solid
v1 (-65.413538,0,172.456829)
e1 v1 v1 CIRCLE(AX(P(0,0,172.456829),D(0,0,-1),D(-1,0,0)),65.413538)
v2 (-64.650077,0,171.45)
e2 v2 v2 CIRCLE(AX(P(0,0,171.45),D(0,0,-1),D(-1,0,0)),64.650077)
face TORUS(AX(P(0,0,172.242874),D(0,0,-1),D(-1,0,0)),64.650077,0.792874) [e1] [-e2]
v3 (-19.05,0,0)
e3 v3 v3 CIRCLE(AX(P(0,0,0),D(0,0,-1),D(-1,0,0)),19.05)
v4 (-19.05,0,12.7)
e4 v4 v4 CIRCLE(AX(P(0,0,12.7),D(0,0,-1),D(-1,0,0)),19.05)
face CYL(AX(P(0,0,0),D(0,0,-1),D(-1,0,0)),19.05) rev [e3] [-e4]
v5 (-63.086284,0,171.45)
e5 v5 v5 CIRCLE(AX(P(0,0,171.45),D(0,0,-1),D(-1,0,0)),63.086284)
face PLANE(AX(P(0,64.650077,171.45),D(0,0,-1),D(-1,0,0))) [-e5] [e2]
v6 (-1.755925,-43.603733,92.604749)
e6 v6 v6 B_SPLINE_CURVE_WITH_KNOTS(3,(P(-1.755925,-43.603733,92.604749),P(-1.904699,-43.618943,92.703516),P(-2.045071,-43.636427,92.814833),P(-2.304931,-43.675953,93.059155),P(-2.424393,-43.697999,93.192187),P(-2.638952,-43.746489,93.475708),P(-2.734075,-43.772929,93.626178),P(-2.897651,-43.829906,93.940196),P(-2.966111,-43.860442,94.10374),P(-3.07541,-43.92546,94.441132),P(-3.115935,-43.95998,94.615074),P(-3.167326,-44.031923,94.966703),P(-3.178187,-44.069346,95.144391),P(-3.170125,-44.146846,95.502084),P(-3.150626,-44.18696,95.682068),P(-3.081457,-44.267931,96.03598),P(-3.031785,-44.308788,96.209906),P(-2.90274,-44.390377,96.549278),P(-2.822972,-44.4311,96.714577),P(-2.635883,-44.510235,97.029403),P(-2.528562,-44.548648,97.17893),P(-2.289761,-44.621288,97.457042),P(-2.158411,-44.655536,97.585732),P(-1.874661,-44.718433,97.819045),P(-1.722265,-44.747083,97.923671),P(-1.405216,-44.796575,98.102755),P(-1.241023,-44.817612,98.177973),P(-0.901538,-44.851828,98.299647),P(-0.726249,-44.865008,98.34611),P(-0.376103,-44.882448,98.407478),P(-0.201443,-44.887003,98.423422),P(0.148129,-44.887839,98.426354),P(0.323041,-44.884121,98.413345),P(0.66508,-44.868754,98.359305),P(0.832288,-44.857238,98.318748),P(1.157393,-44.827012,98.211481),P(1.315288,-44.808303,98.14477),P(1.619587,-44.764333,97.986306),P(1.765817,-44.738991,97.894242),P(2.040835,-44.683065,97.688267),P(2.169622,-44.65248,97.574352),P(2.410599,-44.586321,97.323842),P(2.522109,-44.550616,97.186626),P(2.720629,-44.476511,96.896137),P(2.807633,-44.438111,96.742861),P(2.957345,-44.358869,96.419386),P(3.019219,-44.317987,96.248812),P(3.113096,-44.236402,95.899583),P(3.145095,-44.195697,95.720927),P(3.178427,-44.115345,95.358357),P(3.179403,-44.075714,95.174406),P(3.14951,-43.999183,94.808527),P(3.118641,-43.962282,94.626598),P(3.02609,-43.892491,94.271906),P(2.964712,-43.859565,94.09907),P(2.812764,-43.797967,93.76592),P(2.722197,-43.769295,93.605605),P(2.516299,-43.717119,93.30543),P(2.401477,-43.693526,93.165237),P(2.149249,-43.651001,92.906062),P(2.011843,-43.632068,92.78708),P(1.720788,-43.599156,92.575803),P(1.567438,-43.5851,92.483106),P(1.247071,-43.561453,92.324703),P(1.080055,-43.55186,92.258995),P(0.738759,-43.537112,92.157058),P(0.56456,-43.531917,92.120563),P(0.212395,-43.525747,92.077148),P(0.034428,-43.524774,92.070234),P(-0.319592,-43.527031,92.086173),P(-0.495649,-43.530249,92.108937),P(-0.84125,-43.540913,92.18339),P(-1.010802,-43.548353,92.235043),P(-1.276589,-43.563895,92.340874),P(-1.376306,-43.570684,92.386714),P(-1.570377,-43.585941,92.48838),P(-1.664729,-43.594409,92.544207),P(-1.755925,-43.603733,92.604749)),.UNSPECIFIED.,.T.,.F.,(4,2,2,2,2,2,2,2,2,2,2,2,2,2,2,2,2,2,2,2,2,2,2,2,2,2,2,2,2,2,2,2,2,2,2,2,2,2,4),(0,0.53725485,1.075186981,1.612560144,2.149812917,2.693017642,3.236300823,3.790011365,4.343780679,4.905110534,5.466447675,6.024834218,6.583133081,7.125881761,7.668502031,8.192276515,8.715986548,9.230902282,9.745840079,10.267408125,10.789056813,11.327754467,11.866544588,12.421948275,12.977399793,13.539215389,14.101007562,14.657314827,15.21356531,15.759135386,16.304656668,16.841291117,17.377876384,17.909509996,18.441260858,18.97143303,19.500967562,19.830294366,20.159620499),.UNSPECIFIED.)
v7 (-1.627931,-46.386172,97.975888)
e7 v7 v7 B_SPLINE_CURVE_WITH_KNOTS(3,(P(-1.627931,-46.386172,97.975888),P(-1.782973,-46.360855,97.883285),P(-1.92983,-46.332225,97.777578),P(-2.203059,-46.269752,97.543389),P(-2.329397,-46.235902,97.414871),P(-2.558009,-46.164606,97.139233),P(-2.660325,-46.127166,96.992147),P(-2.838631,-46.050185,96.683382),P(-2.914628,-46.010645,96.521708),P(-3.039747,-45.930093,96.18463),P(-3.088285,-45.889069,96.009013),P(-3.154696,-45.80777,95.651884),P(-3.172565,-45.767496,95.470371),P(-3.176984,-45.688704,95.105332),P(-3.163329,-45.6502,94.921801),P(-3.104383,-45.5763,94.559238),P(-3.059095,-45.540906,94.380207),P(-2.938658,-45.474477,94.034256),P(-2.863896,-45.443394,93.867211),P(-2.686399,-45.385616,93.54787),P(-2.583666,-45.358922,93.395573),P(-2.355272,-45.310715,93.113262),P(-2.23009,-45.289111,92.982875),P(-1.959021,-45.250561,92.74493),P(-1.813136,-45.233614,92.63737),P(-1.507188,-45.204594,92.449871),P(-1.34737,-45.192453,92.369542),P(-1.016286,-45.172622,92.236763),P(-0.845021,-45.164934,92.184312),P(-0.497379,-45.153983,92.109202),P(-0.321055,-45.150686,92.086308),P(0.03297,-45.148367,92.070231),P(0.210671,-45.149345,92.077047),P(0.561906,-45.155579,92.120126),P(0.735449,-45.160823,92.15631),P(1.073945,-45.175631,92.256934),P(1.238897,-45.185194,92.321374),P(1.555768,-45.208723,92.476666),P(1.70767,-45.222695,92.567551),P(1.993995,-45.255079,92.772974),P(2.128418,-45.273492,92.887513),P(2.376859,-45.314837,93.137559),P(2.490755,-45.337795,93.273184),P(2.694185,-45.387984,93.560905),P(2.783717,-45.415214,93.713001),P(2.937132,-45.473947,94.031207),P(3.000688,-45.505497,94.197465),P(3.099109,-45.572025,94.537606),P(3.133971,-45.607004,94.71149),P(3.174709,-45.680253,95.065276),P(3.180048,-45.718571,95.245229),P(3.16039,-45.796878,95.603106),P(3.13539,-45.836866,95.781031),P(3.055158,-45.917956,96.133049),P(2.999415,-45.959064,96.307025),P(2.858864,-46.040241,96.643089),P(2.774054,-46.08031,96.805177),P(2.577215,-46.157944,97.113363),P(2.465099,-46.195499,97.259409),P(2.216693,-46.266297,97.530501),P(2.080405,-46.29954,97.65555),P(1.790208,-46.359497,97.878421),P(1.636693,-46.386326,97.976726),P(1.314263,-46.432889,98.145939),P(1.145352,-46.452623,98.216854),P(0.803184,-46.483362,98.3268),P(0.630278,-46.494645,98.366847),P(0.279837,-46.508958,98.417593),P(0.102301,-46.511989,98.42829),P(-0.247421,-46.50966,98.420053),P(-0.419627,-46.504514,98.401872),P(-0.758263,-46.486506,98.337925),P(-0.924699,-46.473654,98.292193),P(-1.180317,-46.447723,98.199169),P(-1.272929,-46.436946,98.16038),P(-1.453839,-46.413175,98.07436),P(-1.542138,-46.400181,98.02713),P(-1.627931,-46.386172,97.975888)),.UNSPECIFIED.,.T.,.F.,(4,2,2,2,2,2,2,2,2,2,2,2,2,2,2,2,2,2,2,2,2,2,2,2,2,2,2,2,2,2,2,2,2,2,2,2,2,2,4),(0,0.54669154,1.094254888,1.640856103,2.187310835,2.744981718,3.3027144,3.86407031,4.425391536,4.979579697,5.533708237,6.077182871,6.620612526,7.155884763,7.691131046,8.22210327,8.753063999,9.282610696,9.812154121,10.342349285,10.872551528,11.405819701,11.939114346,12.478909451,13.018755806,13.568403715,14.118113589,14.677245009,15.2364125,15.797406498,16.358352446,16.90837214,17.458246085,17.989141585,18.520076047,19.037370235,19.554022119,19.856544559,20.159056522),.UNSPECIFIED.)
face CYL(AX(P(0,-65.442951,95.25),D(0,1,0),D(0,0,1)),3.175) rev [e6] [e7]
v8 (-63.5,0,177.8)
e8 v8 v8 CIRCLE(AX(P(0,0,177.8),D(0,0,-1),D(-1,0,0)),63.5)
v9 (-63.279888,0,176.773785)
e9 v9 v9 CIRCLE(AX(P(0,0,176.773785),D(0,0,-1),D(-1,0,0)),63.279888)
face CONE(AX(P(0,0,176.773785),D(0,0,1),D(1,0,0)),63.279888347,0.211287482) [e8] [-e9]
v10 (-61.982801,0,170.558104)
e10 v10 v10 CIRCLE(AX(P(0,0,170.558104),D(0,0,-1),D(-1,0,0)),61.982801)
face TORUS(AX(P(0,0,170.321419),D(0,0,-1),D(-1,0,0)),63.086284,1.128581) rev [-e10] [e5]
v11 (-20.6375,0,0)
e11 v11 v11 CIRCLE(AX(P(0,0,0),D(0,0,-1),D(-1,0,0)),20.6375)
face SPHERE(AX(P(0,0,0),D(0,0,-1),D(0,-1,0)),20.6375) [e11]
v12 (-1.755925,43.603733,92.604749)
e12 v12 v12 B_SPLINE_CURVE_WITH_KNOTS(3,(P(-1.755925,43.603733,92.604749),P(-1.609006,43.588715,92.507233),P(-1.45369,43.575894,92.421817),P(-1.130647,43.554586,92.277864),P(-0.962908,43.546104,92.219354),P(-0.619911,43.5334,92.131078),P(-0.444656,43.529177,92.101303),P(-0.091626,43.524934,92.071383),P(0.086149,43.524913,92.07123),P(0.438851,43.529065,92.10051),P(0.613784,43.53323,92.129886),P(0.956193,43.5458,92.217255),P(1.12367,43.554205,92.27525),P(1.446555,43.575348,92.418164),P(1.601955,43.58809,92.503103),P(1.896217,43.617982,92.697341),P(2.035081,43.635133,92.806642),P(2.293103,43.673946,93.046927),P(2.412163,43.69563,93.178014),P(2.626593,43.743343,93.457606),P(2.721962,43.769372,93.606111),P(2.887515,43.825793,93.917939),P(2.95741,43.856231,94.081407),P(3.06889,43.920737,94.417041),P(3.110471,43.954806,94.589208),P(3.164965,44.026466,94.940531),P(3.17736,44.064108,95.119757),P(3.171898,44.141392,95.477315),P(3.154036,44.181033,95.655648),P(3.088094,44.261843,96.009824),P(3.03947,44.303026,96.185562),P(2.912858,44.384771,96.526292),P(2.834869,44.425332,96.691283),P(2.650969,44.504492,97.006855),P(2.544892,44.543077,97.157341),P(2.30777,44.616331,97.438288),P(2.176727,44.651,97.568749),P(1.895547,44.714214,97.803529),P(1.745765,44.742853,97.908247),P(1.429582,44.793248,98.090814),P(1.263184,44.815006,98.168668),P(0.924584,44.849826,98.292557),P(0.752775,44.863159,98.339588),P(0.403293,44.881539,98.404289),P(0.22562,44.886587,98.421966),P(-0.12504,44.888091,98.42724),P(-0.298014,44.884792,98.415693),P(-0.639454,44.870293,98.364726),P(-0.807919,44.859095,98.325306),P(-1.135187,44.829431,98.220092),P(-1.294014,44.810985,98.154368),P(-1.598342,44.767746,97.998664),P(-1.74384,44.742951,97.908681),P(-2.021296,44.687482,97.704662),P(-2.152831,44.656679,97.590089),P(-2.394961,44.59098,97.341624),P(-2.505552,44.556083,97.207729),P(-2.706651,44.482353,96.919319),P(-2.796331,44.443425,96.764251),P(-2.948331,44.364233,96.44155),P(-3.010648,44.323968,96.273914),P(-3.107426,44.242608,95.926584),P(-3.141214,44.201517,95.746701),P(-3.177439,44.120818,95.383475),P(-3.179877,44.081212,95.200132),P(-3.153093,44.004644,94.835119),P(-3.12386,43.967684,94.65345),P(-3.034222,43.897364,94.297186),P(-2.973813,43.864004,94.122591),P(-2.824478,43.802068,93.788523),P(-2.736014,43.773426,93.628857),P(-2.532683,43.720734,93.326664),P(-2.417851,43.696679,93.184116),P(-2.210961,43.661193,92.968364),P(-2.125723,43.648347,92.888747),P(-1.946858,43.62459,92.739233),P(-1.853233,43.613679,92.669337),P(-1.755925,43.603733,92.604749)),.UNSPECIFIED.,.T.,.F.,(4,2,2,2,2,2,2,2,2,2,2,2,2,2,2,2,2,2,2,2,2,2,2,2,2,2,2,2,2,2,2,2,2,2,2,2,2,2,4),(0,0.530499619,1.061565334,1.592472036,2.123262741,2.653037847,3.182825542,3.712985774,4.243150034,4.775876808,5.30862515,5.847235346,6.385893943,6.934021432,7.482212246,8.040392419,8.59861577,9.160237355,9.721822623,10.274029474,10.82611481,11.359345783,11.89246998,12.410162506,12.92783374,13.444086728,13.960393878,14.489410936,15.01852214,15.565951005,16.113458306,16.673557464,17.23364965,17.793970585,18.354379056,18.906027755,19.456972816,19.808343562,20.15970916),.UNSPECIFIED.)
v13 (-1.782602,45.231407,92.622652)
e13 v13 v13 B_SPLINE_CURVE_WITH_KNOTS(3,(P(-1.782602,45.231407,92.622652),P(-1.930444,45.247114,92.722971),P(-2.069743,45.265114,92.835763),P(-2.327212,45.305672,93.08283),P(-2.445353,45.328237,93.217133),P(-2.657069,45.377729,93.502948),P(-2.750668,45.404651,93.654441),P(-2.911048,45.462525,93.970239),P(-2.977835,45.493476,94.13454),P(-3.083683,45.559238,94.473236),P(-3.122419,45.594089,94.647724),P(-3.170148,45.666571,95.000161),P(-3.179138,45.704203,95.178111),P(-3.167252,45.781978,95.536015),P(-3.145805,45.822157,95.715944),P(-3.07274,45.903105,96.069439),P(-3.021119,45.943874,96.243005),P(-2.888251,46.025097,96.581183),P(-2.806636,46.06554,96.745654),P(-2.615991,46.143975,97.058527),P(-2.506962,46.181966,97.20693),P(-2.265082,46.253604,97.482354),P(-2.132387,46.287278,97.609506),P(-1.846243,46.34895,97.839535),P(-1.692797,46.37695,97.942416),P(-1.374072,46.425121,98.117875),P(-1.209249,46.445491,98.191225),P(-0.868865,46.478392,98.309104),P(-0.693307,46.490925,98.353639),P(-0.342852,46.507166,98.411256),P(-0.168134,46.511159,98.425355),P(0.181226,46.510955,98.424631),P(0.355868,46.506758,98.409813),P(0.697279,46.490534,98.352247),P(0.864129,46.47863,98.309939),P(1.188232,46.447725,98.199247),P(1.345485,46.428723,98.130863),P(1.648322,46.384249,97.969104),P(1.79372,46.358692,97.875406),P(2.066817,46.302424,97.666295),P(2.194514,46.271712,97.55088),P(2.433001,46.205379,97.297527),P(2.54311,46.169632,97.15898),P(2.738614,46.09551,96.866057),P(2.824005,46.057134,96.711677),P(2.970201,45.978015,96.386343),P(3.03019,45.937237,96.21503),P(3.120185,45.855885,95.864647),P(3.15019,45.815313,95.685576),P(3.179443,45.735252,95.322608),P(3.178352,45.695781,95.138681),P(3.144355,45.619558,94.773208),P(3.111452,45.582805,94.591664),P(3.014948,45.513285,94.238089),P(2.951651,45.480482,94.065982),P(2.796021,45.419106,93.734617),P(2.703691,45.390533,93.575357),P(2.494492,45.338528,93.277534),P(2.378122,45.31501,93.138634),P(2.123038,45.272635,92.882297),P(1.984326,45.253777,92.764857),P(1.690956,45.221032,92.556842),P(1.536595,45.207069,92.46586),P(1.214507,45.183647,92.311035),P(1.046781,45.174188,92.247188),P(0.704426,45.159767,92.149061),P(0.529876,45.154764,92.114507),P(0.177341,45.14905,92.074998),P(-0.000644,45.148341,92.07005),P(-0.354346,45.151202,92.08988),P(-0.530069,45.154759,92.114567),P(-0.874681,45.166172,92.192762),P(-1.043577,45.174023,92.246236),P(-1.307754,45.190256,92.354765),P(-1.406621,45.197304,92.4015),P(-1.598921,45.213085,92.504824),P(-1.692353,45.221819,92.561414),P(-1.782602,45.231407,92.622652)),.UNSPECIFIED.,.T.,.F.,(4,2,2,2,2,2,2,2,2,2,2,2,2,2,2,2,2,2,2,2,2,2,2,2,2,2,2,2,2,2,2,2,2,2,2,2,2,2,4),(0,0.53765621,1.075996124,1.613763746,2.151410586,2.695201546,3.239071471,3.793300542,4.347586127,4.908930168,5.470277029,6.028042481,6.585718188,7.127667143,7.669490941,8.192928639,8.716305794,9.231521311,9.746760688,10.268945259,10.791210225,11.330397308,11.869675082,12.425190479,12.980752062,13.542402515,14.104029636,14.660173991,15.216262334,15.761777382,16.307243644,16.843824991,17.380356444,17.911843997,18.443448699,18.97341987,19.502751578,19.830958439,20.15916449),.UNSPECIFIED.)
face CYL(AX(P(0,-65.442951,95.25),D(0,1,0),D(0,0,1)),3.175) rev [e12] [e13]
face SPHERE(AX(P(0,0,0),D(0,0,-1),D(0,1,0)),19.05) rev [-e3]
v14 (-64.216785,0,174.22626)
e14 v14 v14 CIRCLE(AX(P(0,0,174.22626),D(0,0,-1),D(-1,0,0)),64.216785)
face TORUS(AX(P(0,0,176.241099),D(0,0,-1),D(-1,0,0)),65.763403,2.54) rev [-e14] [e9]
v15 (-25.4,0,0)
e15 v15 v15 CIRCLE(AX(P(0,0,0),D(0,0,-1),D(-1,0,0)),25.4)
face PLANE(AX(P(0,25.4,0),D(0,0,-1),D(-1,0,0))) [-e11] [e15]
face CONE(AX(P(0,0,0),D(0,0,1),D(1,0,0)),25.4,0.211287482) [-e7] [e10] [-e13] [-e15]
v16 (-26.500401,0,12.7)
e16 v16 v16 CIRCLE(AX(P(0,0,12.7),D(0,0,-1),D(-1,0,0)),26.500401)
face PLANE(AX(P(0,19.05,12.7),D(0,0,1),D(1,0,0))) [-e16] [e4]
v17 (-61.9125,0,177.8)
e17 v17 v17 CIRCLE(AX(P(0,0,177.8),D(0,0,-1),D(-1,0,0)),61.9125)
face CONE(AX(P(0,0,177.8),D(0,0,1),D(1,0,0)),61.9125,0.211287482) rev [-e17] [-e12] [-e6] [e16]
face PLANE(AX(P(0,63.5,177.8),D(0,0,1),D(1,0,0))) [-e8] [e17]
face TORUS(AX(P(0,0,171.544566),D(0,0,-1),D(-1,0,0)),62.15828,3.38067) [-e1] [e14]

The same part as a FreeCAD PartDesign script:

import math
import FreeCAD as App
import Part
import Sketcher
from FreeCAD import Vector
Q = App.Units.Quantity

doc = App.newDocument("Part")
body = doc.addObject("PartDesign::Body", "Body")

# Sketch on YZ plane
sketch1 = body.newObject("Sketcher::SketchObject", "Sketch")
sketch1.AttachmentSupport = (doc.getObject("YZ_Plane"), [""])
sketch1.MapMode = "FlatFace"
sketch1.addGeometry(Part.LineSegment(Vector(25.4, 0, 0), Vector(62, 170.6, 0)), False)
sketch1.addGeometry(Part.ArcOfCircle(Part.Circle(Vector(63.1, 170.3, 0), Vector(0, 0, 1), 1.1), math.radians(90), math.radians(168)), False)
sketch1.addGeometry(Part.LineSegment(Vector(63.1, 171.4, 0), Vector(64.7, 171.4, 0)), False)
sketch1.addGeometry(Part.ArcOfCircle(Part.Circle(Vector(64.7, 172.2, 0), Vector(0, 0, 1), 0.8), math.radians(-90), math.radians(16)), False)
sketch1.addGeometry(Part.ArcOfCircle(Part.Circle(Vector(62.2, 171.5, 0), Vector(0, 0, 1), 3.4), math.radians(16), math.radians(52)), False)
sketch1.addGeometry(Part.ArcOfCircle(Part.Circle(Vector(65.8, 176.2, 0), Vector(0, 0, 1), 2.5), math.radians(168), math.radians(232)), False)
sketch1.addGeometry(Part.LineSegment(Vector(63.3, 176.8, 0), Vector(63.5, 177.8, 0)), False)
sketch1.addGeometry(Part.LineSegment(Vector(63.5, 177.8, 0), Vector(61.9, 177.8, 0)), False)
sketch1.addGeometry(Part.LineSegment(Vector(61.9, 177.8, 0), Vector(26.5, 12.7, 0)), False)
sketch1.addGeometry(Part.LineSegment(Vector(26.5, 12.7, 0), Vector(19.1, 12.7, 0)), False)
sketch1.addGeometry(Part.LineSegment(Vector(19.1, 12.7, 0), Vector(19.1, 0, 0)), False)
sketch1.addGeometry(Part.ArcOfCircle(Part.Circle(Vector(0, 0, 0), Vector(0, 0, 1), 19), math.radians(-90), math.radians(0)), False)
sketch1.addGeometry(Part.LineSegment(Vector(0, -19.1, 0), Vector(0, -20.6, 0)), False)
sketch1.addGeometry(Part.ArcOfCircle(Part.Circle(Vector(0, 0, 0), Vector(0, 0, 1), 20.6), math.radians(-90), math.radians(0)), False)
sketch1.addGeometry(Part.LineSegment(Vector(20.6, 0, 0), Vector(25.4, 0, 0)), False)
sketch1.addConstraint(Sketcher.Constraint("Tangent", 0, 2, 1, 2))
sketch1.addConstraint(Sketcher.Constraint("Tangent", 1, 1, 2, 1))
sketch1.addConstraint(Sketcher.Constraint("Tangent", 2, 2, 3, 1))
sketch1.addConstraint(Sketcher.Constraint("Tangent", 3, 2, 4, 1))
sketch1.addConstraint(Sketcher.Constraint("Tangent", 4, 2, 5, 2))
sketch1.addConstraint(Sketcher.Constraint("Tangent", 5, 1, 6, 1))
sketch1.addConstraint(Sketcher.Constraint("Coincident", 6, 2, 7, 1))
sketch1.addConstraint(Sketcher.Constraint("Coincident", 7, 2, 8, 1))
sketch1.addConstraint(Sketcher.Constraint("Coincident", 8, 2, 9, 1))
sketch1.addConstraint(Sketcher.Constraint("Coincident", 9, 2, 10, 1))
sketch1.addConstraint(Sketcher.Constraint("Tangent", 10, 2, 11, 2))
sketch1.addConstraint(Sketcher.Constraint("Coincident", 11, 1, 12, 1))
sketch1.addConstraint(Sketcher.Constraint("Coincident", 12, 2, 13, 1))
sketch1.addConstraint(Sketcher.Constraint("Coincident", 13, 2, 14, 1))
sketch1.addConstraint(Sketcher.Constraint("Coincident", 14, 2, 0, 1))
sketch1.addConstraint(Sketcher.Constraint("Horizontal", 2))
sketch1.addConstraint(Sketcher.Constraint("Horizontal", 7))
sketch1.addConstraint(Sketcher.Constraint("Horizontal", 9))
sketch1.addConstraint(Sketcher.Constraint("Vertical", 10))
sketch1.addConstraint(Sketcher.Constraint("Vertical", 12))
sketch1.addConstraint(Sketcher.Constraint("Horizontal", 14))
sketch1.addConstraint(Sketcher.Constraint("Coincident", 11, 3, -1, 1))
sketch1.addConstraint(Sketcher.Constraint("Coincident", 13, 3, -1, 1))
sketch1.addConstraint(Sketcher.Constraint("PointOnObject", 11, 1, -2))
sketch1.addConstraint(Sketcher.Constraint("PointOnObject", 13, 2, -1))
sketch1.addConstraint(Sketcher.Constraint("Parallel", 0, 6))
sketch1.addConstraint(Sketcher.Constraint("Parallel", 6, 8))
sketch1.addConstraint(Sketcher.Constraint("Equal", 7, 12))
sketch1.addConstraint(Sketcher.Constraint("Radius", 5, Q("0.1 in")))
sketch1.addConstraint(Sketcher.Constraint("Radius", 11, Q("0.75 in")))
sketch1.addConstraint(Sketcher.Constraint("DistanceY", 10, 2, 10, 1, Q("0.5 in")))
sketch1.addConstraint(Sketcher.Constraint("DistanceY", -1, 1, 6, 2, Q("7 in")))
sketch1.addConstraint(Sketcher.Constraint("DistanceX", -1, 1, 14, 2, Q("1 in")))
sketch1.addConstraint(Sketcher.Constraint("Radius", 13, Q("0.8125 in")))
sketch1.addConstraint(Sketcher.Constraint("DistanceX", -1, 1, 6, 2, Q("2.5 in")))
sketch1.addConstraint(Sketcher.Constraint("DistanceY", -1, 1, 1, 1, Q("6.75 in")))
sketch1.addConstraint(Sketcher.Constraint("Radius", 1, Q("1.128581 mm")))
sketch1.addConstraint(Sketcher.Constraint("Radius", 4, Q("3.38067 mm")))
sketch1.addConstraint(Sketcher.Constraint("DistanceX", 9, 2, 9, 1, Q("7.450401 mm")))
sketch1.addConstraint(Sketcher.Constraint("Radius", 3, Q("0.792874 mm")))
sketch1.addConstraint(Sketcher.Constraint("DistanceY", -1, 1, 5, 3, Q("176.241099 mm")))
sketch1.addConstraint(Sketcher.Constraint("DistanceX", 1, 1, 4, 2, Q("1.130502 mm")))
revolution = body.newObject("PartDesign::Revolution", "Revolution")
revolution.Profile = sketch1
revolution.ReferenceAxis = (sketch1, ["V_Axis"])
revolution.Angle = 360

# Sketch on XZ plane
sketch2 = body.newObject("Sketcher::SketchObject", "Sketch001")
sketch2.AttachmentSupport = (doc.getObject("XZ_Plane"), [""])
sketch2.MapMode = "FlatFace"
sketch2.addGeometry(Part.Circle(Vector(0, 95.2, 0), Vector(0, 0, 1), 3.2), False)
sketch2.addConstraint(Sketcher.Constraint("PointOnObject", 0, 3, -2))
sketch2.addConstraint(Sketcher.Constraint("Diameter", 0, Q("0.25 in")))
sketch2.addConstraint(Sketcher.Constraint("DistanceY", -1, 1, 0, 3, Q("3.75 in")))
pocket1 = body.newObject("PartDesign::Pocket", "Pocket")
pocket1.Profile = sketch2
pocket1.Type = "ThroughAll"
pocket1.Midplane = True

doc.recompute()
